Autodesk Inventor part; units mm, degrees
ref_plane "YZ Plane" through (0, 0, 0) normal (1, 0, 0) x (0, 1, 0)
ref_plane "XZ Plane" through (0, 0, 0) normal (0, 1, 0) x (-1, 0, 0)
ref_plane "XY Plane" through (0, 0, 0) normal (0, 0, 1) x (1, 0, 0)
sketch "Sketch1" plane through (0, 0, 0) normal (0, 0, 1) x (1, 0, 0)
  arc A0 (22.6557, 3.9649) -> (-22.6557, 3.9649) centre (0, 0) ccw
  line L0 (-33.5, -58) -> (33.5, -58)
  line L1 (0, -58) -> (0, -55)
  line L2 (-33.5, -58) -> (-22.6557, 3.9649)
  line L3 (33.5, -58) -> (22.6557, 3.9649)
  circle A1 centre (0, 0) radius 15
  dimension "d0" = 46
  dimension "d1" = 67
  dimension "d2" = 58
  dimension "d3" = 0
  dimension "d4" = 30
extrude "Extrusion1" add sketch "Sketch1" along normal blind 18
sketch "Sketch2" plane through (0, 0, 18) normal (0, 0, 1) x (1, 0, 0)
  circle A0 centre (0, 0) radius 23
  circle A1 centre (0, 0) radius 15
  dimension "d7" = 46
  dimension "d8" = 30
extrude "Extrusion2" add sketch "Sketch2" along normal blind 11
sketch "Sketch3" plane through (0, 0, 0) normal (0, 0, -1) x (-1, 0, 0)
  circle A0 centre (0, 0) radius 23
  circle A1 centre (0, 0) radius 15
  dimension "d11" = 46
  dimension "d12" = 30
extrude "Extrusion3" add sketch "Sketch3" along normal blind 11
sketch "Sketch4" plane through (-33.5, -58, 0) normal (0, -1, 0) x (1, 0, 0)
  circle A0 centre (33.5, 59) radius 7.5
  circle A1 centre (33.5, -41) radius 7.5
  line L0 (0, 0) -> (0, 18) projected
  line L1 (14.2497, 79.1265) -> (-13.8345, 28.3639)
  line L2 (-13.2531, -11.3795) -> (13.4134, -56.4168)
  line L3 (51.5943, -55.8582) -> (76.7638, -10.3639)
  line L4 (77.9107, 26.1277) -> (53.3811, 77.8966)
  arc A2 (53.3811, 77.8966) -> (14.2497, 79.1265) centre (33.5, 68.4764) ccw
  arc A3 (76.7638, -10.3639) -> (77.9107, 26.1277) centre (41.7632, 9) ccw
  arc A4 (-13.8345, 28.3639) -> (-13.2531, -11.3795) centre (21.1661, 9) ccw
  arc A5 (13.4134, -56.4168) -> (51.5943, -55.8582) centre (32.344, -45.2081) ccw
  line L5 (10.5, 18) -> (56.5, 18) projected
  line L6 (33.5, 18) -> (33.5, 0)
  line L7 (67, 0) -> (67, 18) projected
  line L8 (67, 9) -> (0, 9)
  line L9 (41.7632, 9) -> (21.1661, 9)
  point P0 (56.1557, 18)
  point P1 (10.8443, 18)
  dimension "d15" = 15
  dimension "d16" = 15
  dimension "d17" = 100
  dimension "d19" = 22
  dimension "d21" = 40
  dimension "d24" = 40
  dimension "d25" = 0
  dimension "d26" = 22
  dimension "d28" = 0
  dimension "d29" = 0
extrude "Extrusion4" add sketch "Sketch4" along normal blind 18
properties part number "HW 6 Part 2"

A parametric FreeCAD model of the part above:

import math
import FreeCAD as App
import Part
import Sketcher
Q = App.Units.Quantity

doc = App.newDocument("Part")
body = doc.addObject("PartDesign::Body", "Body")

# Sketch on XY plane
sketch1 = body.newObject("Sketcher::SketchObject", "Sketch")
sketch1.AttachmentSupport = (doc.getObject("XY_Plane"), [""])
sketch1.MapMode = "FlatFace"
sketch1.addGeometry(Part.LineSegment(App.Vector(33.5, -58, 0), App.Vector(22.6557, 3.9649, 0)), False)
sketch1.addGeometry(Part.ArcOfCircle(Part.Circle(App.Vector(0, 0, 0), App.Vector(0, 0, 1), 23.000026), math.radians(9.92662), math.radians(170.07338)), False)
sketch1.addGeometry(Part.LineSegment(App.Vector(-22.6557, 3.9649, 0), App.Vector(-33.5, -58, 0)), False)
sketch1.addGeometry(Part.LineSegment(App.Vector(-33.5, -58, 0), App.Vector(33.5, -58, 0)), False)
sketch1.addGeometry(Part.Circle(App.Vector(0, 0, 0), App.Vector(0, 0, 1), 15), False)
sketch1.addConstraint(Sketcher.Constraint("Tangent", 0, 2, 1, 1))
sketch1.addConstraint(Sketcher.Constraint("Tangent", 1, 2, 2, 1))
sketch1.addConstraint(Sketcher.Constraint("Coincident", 2, 2, 3, 1))
sketch1.addConstraint(Sketcher.Constraint("Coincident", 3, 2, 0, 1))
sketch1.addConstraint(Sketcher.Constraint("Horizontal", 3))
sketch1.addConstraint(Sketcher.Constraint("Coincident", 1, 3, -1, 1))
sketch1.addConstraint(Sketcher.Constraint("Coincident", 4, 3, -1, 1))
sketch1.addConstraint(Sketcher.Constraint("Horizontal", 0, 2, 1, 2))
sketch1.addConstraint(Sketcher.Constraint("Diameter", 4, 30.0))
sketch1.addConstraint(Sketcher.Constraint("Radius", 1, 23.0))
sketch1.addConstraint(Sketcher.Constraint("DistanceX", 3, 1, 3, 2, 67.0))
sketch1.addConstraint(Sketcher.Constraint("DistanceY", 2, 2, -1, 1, 58.0))
pad1 = body.newObject("PartDesign::Pad", "Pad")
pad1.Profile = sketch1
pad1.Length = 18

# Sketch on XY plane
sketch2 = body.newObject("Sketcher::SketchObject", "Sketch001")
sketch2.AttachmentSupport = (doc.getObject("XY_Plane"), [""])
sketch2.MapMode = "FlatFace"
sketch2.AttachmentOffset = App.Placement(App.Vector(0, 0, 18), App.Rotation())
sketch2.addGeometry(Part.Circle(App.Vector(0, 0, 0), App.Vector(0, 0, 1), 23), False)
sketch2.addGeometry(Part.Circle(App.Vector(0, 0, 0), App.Vector(0, 0, 1), 15), False)
sketch2.addConstraint(Sketcher.Constraint("Coincident", 0, 3, -1, 1))
sketch2.addConstraint(Sketcher.Constraint("Coincident", 1, 3, -1, 1))
sketch2.addConstraint(Sketcher.Constraint("Diameter", 0, 46.0))
sketch2.addConstraint(Sketcher.Constraint("Diameter", 1, 30.0))
pad2 = body.newObject("PartDesign::Pad", "Pad001")
pad2.Profile = sketch2
pad2.Length = 11

# Sketch on XY plane
sketch3 = body.newObject("Sketcher::SketchObject", "Sketch002")
sketch3.AttachmentSupport = (doc.getObject("XY_Plane"), [""])
sketch3.MapMode = "FlatFace"
sketch3.addGeometry(Part.Circle(App.Vector(0, 0, 0), App.Vector(0, 0, 1), 23), False)
sketch3.addGeometry(Part.Circle(App.Vector(0, 0, 0), App.Vector(0, 0, 1), 15), False)
sketch3.addConstraint(Sketcher.Constraint("Coincident", 0, 3, -1, 1))
sketch3.addConstraint(Sketcher.Constraint("Coincident", 1, 3, -1, 1))
sketch3.addConstraint(Sketcher.Constraint("Diameter", 0, 46.0))
sketch3.addConstraint(Sketcher.Constraint("Diameter", 1, 30.0))
pad3 = body.newObject("PartDesign::Pad", "Pad002")
pad3.Profile = sketch3
pad3.Length = 11
pad3.Reversed = True

# Sketch on XZ plane
sketch4 = body.newObject("Sketcher::SketchObject", "Sketch003")
sketch4.AttachmentSupport = (doc.getObject("XZ_Plane"), [""])
sketch4.MapMode = "FlatFace"
sketch4.AttachmentOffset = App.Placement(App.Vector(0, 0, 58), App.Rotation())
sketch4.addGeometry(Part.ArcOfCircle(Part.Circle(App.Vector(0, 68.4764, 0), App.Vector(0, 0, 1), 21.999961), math.radians(25.352853), math.radians(151.046731)), False)
sketch4.addGeometry(Part.LineSegment(App.Vector(-19.2503, 79.1265, 0), App.Vector(-47.3345, 28.3639, 0)), False)
sketch4.addGeometry(Part.ArcOfCircle(Part.Circle(App.Vector(-12.3339, 9, 0), App.Vector(0, 0, 1), 40.000033), math.radians(151.046666), math.radians(210.629642)), False)
sketch4.addGeometry(Part.LineSegment(App.Vector(-46.7531, -11.3795, 0), App.Vector(-20.0866, -56.4168, 0)), False)
sketch4.addGeometry(Part.ArcOfCircle(Part.Circle(App.Vector(-1.156, -45.2081, 0), App.Vector(0, 0, 1), 22.000058), math.radians(-149.370467), math.radians(-28.953269)), False)
sketch4.addGeometry(Part.LineSegment(App.Vector(18.0943, -55.8582, 0), App.Vector(43.2638, -10.3639, 0)), False)
sketch4.addGeometry(Part.ArcOfCircle(Part.Circle(App.Vector(8.2632, 9, 0), App.Vector(0, 0, 1), 40.000033), math.radians(-28.953334), math.radians(25.352907)), False)
sketch4.addGeometry(Part.LineSegment(App.Vector(44.4107, 26.1277, 0), App.Vector(19.8811, 77.8966, 0)), False)
sketch4.addGeometry(Part.Circle(App.Vector(0, -41, 0), App.Vector(0, 0, 1), 7.5), False)
sketch4.addGeometry(Part.Circle(App.Vector(0, 59, 0), App.Vector(0, 0, 1), 7.5), False)
sketch4.addConstraint(Sketcher.Constraint("Tangent", 0, 2, 1, 1))
sketch4.addConstraint(Sketcher.Constraint("Tangent", 1, 2, 2, 1))
sketch4.addConstraint(Sketcher.Constraint("Tangent", 2, 2, 3, 1))
sketch4.addConstraint(Sketcher.Constraint("Tangent", 3, 2, 4, 1))
sketch4.addConstraint(Sketcher.Constraint("Tangent", 4, 2, 5, 1))
sketch4.addConstraint(Sketcher.Constraint("Tangent", 5, 2, 6, 1))
sketch4.addConstraint(Sketcher.Constraint("Tangent", 6, 2, 7, 1))
sketch4.addConstraint(Sketcher.Constraint("Tangent", 7, 2, 0, 1))
sketch4.addConstraint(Sketcher.Constraint("Equal", 0, 4))
sketch4.addConstraint(Sketcher.Constraint("Equal", 2, 6))
sketch4.addConstraint(Sketcher.Constraint("Equal", 8, 9))
sketch4.addConstraint(Sketcher.Constraint("PointOnObject", 0, 3, -2))
sketch4.addConstraint(Sketcher.Constraint("PointOnObject", 8, 3, -2))
sketch4.addConstraint(Sketcher.Constraint("PointOnObject", 9, 3, -2))
sketch4.addConstraint(Sketcher.Constraint("Parallel", 1, 5))
sketch4.addConstraint(Sketcher.Constraint("Horizontal", 2, 3, 6, 3))
sketch4.addConstraint(Sketcher.Constraint("Diameter", 8, 15.0))
sketch4.addConstraint(Sketcher.Constraint("Radius", 0, 22.0))
sketch4.addConstraint(Sketcher.Constraint("Radius", 2, 40.0))
sketch4.addConstraint(Sketcher.Constraint("DistanceY", 8, 3, 9, 3, 100.0))
sketch4.addConstraint(Sketcher.Constraint("DistanceY", -1, 1, 2, 3, 9.0))
sketch4.addConstraint(Sketcher.Constraint("DistanceY", 8, 3, -1, 1, 41.0))
sketch4.addConstraint(Sketcher.Constraint("Angle", 3, Q("-59.3703 deg")))
sketch4.addConstraint(Sketcher.Constraint("DistanceY", 0, 3, 0, 2, 10.65))
sketch4.addConstraint(Sketcher.Constraint("DistanceY", 7, 2, 0, 2, 1.23))
sketch4.addConstraint(Sketcher.Constraint("DistanceX", 2, 3, -1, 1, 12.334))
pad4 = body.newObject("PartDesign::Pad", "Pad003")
pad4.Profile = sketch4
pad4.Length = 18

doc.recompute()
